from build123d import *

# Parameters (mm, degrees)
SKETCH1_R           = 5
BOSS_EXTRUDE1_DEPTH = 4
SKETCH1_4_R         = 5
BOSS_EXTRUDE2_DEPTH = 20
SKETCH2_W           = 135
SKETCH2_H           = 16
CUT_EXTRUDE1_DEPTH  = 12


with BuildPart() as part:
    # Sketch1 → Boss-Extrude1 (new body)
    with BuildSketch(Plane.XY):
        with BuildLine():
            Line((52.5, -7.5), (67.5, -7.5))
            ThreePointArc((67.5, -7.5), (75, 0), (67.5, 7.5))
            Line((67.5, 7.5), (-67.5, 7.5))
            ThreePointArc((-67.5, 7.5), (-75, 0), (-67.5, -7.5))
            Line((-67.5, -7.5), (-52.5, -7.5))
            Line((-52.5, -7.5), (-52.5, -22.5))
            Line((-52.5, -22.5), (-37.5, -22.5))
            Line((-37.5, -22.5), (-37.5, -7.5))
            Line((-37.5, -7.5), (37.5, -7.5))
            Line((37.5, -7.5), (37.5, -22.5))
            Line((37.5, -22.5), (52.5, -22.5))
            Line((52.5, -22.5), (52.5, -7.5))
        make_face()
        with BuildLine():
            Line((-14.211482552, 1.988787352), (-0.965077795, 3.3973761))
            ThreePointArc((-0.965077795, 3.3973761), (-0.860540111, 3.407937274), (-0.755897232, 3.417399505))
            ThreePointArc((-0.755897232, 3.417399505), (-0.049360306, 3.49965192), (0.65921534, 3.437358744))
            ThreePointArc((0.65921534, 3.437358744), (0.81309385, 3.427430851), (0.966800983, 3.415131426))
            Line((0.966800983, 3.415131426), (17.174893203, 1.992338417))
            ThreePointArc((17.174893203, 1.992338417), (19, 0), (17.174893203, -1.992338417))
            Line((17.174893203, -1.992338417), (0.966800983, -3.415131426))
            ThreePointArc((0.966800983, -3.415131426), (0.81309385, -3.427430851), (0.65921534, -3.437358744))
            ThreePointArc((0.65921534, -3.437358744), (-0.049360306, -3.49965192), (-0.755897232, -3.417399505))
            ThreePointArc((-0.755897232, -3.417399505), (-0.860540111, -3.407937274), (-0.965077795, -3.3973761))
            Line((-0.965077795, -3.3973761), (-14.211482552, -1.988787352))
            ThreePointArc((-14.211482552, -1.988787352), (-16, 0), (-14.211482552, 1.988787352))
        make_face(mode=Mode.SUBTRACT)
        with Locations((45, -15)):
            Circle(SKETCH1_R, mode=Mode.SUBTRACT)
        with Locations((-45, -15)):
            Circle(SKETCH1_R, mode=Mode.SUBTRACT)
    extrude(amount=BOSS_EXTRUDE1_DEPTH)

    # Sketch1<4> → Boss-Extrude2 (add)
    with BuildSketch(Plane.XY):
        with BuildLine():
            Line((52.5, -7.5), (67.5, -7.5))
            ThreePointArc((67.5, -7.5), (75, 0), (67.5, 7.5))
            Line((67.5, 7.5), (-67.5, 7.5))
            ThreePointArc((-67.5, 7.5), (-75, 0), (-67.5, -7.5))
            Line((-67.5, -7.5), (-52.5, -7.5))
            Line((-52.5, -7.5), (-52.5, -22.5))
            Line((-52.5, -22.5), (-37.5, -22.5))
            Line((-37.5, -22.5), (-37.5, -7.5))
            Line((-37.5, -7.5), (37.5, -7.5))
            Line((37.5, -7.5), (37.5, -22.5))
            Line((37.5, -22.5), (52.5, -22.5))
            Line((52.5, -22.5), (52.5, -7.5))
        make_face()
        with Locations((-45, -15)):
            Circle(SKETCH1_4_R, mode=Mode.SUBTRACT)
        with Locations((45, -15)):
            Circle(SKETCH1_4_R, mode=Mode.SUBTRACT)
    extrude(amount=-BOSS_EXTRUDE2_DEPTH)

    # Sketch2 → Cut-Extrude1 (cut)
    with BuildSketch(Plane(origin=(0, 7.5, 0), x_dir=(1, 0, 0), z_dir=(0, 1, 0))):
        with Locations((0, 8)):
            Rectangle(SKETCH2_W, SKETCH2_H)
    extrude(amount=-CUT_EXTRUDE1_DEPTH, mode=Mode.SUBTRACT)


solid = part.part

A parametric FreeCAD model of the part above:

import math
import FreeCAD as App
import Part
import Sketcher

V = App.Vector
Q = App.Units.Quantity

doc = App.newDocument("Part")
body = doc.addObject("PartDesign::Body", "Body")

# Sketch on XY plane
sketch1 = doc.addObject("Sketcher::SketchObject", "Sketch")
body.addObject(sketch1)
sketch1.AttachmentSupport = (doc.XY_Plane, [""])
sketch1.MapMode = "FlatFace"
sketch1.addGeometry([
    Part.LineSegment(V(52.5, -7.5, 0), V(67.5, -7.5, 0)),  # 0
    Part.ArcOfCircle(Part.Circle(V(67.5, 0, 0), V(0, 0, 1), 7.5), math.radians(-90), math.radians(90)),  # 1
    Part.LineSegment(V(67.5, 7.5, 0), V(-67.5, 7.5, 0)),  # 2
    Part.ArcOfCircle(Part.Circle(V(-67.5, 0, 0), V(0, 0, 1), 7.5), math.radians(90), math.radians(270)),  # 3
    Part.LineSegment(V(-67.5, -7.5, 0), V(-52.5, -7.5, 0)),  # 4
    Part.LineSegment(V(-52.5, -7.5, 0), V(-52.5, -22.5, 0)),  # 5
    Part.LineSegment(V(-52.5, -22.5, 0), V(-37.5, -22.5, 0)),  # 6
    Part.LineSegment(V(-37.5, -22.5, 0), V(-37.5, -7.5, 0)),  # 7
    Part.LineSegment(V(-37.5, -7.5, 0), V(37.5, -7.5, 0)),  # 8
    Part.LineSegment(V(37.5, -7.5, 0), V(37.5, -22.5, 0)),  # 9
    Part.LineSegment(V(37.5, -22.5, 0), V(52.5, -22.5, 0)),  # 10
    Part.LineSegment(V(52.5, -22.5, 0), V(52.5, -7.5, 0)),  # 11
    Part.Circle(V(-45, -15, 0), V(0, 0, 1), 5),  # 12
    Part.Circle(V(45, -15, 0), V(0, 0, 1), 5),  # 13
    Part.ArcOfCircle(Part.Circle(V(-14, 0, 0), V(0, 0, 1), 2), math.radians(96), math.radians(264)),  # 14
    Part.LineSegment(V(-14.21, 1.99, 0), V(-0.97, 3.4, 0)),  # 15
    Part.ArcOfCircle(Part.Circle(V(0.09, -6.55, 0), V(0, 0, 1), 10), math.radians(94.87), math.radians(96.07)),  # 16
    Part.ArcOfCircle(Part.Circle(V(0, 0, 0), V(0, 0, 1), 3.5), math.radians(79), math.radians(102)),  # 17
    Part.ArcOfCircle(Part.Circle(V(0.09, -6.55, 0), V(0, 0, 1), 10), math.radians(84.98), math.radians(86.75)),  # 18
    Part.LineSegment(V(0.97, 3.42, 0), V(17.17, 1.99, 0)),  # 19
    Part.ArcOfCircle(Part.Circle(V(17, 0, 0), V(0, 0, 1), 2), math.radians(-85), math.radians(85)),  # 20
    Part.LineSegment(V(17.17, -1.99, 0), V(0.97, -3.42, 0)),  # 21
    Part.ArcOfCircle(Part.Circle(V(0.09, 6.55, 0), V(0, 0, 1), 10), math.radians(-86.75), math.radians(-84.98)),  # 22
    Part.ArcOfCircle(Part.Circle(V(0, 0, 0), V(0, 0, 1), 3.5), math.radians(-102), math.radians(-79)),  # 23
    Part.ArcOfCircle(Part.Circle(V(0.09, 6.55, 0), V(0, 0, 1), 10), math.radians(-96.07), math.radians(-94.87)),  # 24
    Part.LineSegment(V(-0.97, -3.4, 0), V(-14.21, -1.99, 0)),  # 25
], False)
sketch1.addConstraint([
    Sketcher.Constraint("Tangent", 0, 2, 1, 1),
    Sketcher.Constraint("Tangent", 1, 2, 2, 1),
    Sketcher.Constraint("Tangent", 2, 2, 3, 1),
    Sketcher.Constraint("Tangent", 3, 2, 4, 1),
    Sketcher.Constraint("Coincident", 4, 2, 5, 1),
    Sketcher.Constraint("Coincident", 5, 2, 6, 1),
    Sketcher.Constraint("Coincident", 6, 2, 7, 1),
    Sketcher.Constraint("Coincident", 7, 2, 8, 1),
    Sketcher.Constraint("Coincident", 8, 2, 9, 1),
    Sketcher.Constraint("Coincident", 9, 2, 10, 1),
    Sketcher.Constraint("Coincident", 10, 2, 11, 1),
    Sketcher.Constraint("Coincident", 11, 2, 0, 1),
    Sketcher.Constraint("Tangent", 14, 1, 15, 1),
    Sketcher.Constraint("Tangent", 15, 2, 16, 2),
    Sketcher.Constraint("Coincident", 16, 1, 17, 2),
    Sketcher.Constraint("Coincident", 17, 1, 18, 2),
    Sketcher.Constraint("Tangent", 18, 1, 19, 1),
    Sketcher.Constraint("Tangent", 19, 2, 20, 2),
    Sketcher.Constraint("Tangent", 20, 1, 21, 1),
    Sketcher.Constraint("Tangent", 21, 2, 22, 2),
    Sketcher.Constraint("Coincident", 22, 1, 23, 2),
    Sketcher.Constraint("Coincident", 23, 1, 24, 2),
    Sketcher.Constraint("Tangent", 24, 1, 25, 1),
    Sketcher.Constraint("Tangent", 25, 2, 14, 2),
    Sketcher.Constraint("Horizontal", 0),
    Sketcher.Constraint("Horizontal", 2),
    Sketcher.Constraint("Horizontal", 4),
    Sketcher.Constraint("Vertical", 5),
    Sketcher.Constraint("Horizontal", 6),
    Sketcher.Constraint("Vertical", 7),
    Sketcher.Constraint("Horizontal", 8),
    Sketcher.Constraint("Vertical", 9),
    Sketcher.Constraint("Horizontal", 10),
    Sketcher.Constraint("Vertical", 11),
    Sketcher.Constraint("Coincident", 17, 3, -1, 1),
    Sketcher.Constraint("Coincident", 23, 3, -1, 1),
    Sketcher.Constraint("Coincident", 18, 3, 16, 3),
    Sketcher.Constraint("Coincident", 24, 3, 22, 3),
    Sketcher.Constraint("Equal", 1, 3),
    Sketcher.Constraint("Equal", 12, 13),
    Sketcher.Constraint("Equal", 14, 20),
    Sketcher.Constraint("Equal", 18, 22),
    Sketcher.Constraint("Equal", 17, 23),
    Sketcher.Constraint("Equal", 16, 24),
    Sketcher.Constraint("Symmetric", 1, 3, 3, 3, -1, 1),
    Sketcher.Constraint("Symmetric", 12, 3, 13, 3, -2),
    Sketcher.Constraint("Symmetric", 6, 2, 9, 2, -2),
    Sketcher.Constraint("Symmetric", 16, 3, 22, 3, -1),
    Sketcher.Constraint("PointOnObject", 14, 3, -1),
    Sketcher.Constraint("PointOnObject", 20, 3, -1),
    Sketcher.Constraint("Horizontal", 4, 2, 7, 2),
    Sketcher.Constraint("Equal", 0, 4),
    Sketcher.Constraint("Equal", 4, 6),
    Sketcher.Constraint("Equal", 10, 5),
    Sketcher.Constraint("Diameter", 12, Q("10 mm")),
    Sketcher.Constraint("Radius", 14, Q("2 mm")),
    Sketcher.Constraint("Radius", 18, Q("9.999999 mm")),
    Sketcher.Constraint("Radius", 1, Q("7.5 mm")),
    Sketcher.Constraint("Radius", 17, Q("3.5 mm")),
    Sketcher.Constraint("DistanceX", 0, 1, 0, 2, Q("15 mm")),
    Sketcher.Constraint("DistanceX", 2, 2, 2, 1, Q("135 mm")),
    Sketcher.Constraint("DistanceX", 12, 3, -1, 1, Q("45 mm")),
    Sketcher.Constraint("DistanceY", 12, 3, -1, 1, Q("15 mm")),
    Sketcher.Constraint("DistanceX", 14, 3, -1, 1, Q("14 mm")),
    Sketcher.Constraint("DistanceX", -1, 1, 20, 3, Q("17 mm")),
    Sketcher.Constraint("Radius", 16, Q("10.000002 mm")),
    Sketcher.Constraint("DistanceY", -1, 1, 16, 1, Q("3.4174 mm")),
    Sketcher.Constraint("DistanceX", -1, 1, 18, 1, Q("0.966801 mm")),
])
pad1 = doc.addObject("PartDesign::Pad", "Pad")
body.addObject(pad1)
pad1.Profile = sketch1
pad1.Length = 4

# Sketch on XY plane
sketch2 = doc.addObject("Sketcher::SketchObject", "Sketch001")
body.addObject(sketch2)
sketch2.AttachmentSupport = (doc.XY_Plane, [""])
sketch2.MapMode = "FlatFace"
sketch2.addGeometry([
    Part.LineSegment(V(52, -8, 0), V(68, -8, 0)),  # 0
    Part.ArcOfCircle(Part.Circle(V(68, 0, 0), V(0, 0, 1), 8), math.radians(-90), math.radians(90)),  # 1
    Part.LineSegment(V(68, 8, 0), V(-68, 8, 0)),  # 2
    Part.ArcOfCircle(Part.Circle(V(-68, 0, 0), V(0, 0, 1), 8), math.radians(90), math.radians(270)),  # 3
    Part.LineSegment(V(-68, -8, 0), V(-52, -8, 0)),  # 4
    Part.LineSegment(V(-52, -8, 0), V(-52, -22, 0)),  # 5
    Part.LineSegment(V(-52, -22, 0), V(-38, -22, 0)),  # 6
    Part.LineSegment(V(-38, -22, 0), V(-38, -8, 0)),  # 7
    Part.LineSegment(V(-38, -8, 0), V(38, -8, 0)),  # 8
    Part.LineSegment(V(38, -8, 0), V(38, -22, 0)),  # 9
    Part.LineSegment(V(38, -22, 0), V(52, -22, 0)),  # 10
    Part.LineSegment(V(52, -22, 0), V(52, -8, 0)),  # 11
    Part.Circle(V(-45, -15, 0), V(0, 0, 1), 5),  # 12
    Part.Circle(V(45, -15, 0), V(0, 0, 1), 5),  # 13
], False)
sketch2.addConstraint([
    Sketcher.Constraint("Tangent", 0, 2, 1, 1),
    Sketcher.Constraint("Tangent", 1, 2, 2, 1),
    Sketcher.Constraint("Tangent", 2, 2, 3, 1),
    Sketcher.Constraint("Tangent", 3, 2, 4, 1),
    Sketcher.Constraint("Coincident", 4, 2, 5, 1),
    Sketcher.Constraint("Coincident", 5, 2, 6, 1),
    Sketcher.Constraint("Coincident", 6, 2, 7, 1),
    Sketcher.Constraint("Coincident", 7, 2, 8, 1),
    Sketcher.Constraint("Coincident", 8, 2, 9, 1),
    Sketcher.Constraint("Coincident", 9, 2, 10, 1),
    Sketcher.Constraint("Coincident", 10, 2, 11, 1),
    Sketcher.Constraint("Coincident", 11, 2, 0, 1),
    Sketcher.Constraint("Horizontal", 0),
    Sketcher.Constraint("Horizontal", 2),
    Sketcher.Constraint("Horizontal", 4),
    Sketcher.Constraint("Vertical", 5),
    Sketcher.Constraint("Horizontal", 6),
    Sketcher.Constraint("Vertical", 7),
    Sketcher.Constraint("Horizontal", 8),
    Sketcher.Constraint("Vertical", 9),
    Sketcher.Constraint("Horizontal", 10),
    Sketcher.Constraint("Vertical", 11),
    Sketcher.Constraint("Equal", 1, 3),
    Sketcher.Constraint("Equal", 12, 13),
    Sketcher.Constraint("Symmetric", 1, 3, 3, 3, -1, 1),
    Sketcher.Constraint("Symmetric", 12, 3, 13, 3, -2),
    Sketcher.Constraint("Symmetric", 6, 2, 9, 2, -2),
    Sketcher.Constraint("Horizontal", 4, 2, 7, 2),
    Sketcher.Constraint("Equal", 0, 4),
    Sketcher.Constraint("Equal", 4, 6),
    Sketcher.Constraint("Equal", 10, 5),
    Sketcher.Constraint("Diameter", 12, Q("10 mm")),
    Sketcher.Constraint("Radius", 1, Q("7.5 mm")),
    Sketcher.Constraint("DistanceX", 0, 1, 0, 2, Q("15 mm")),
    Sketcher.Constraint("DistanceX", 2, 2, 2, 1, Q("135 mm")),
    Sketcher.Constraint("DistanceX", 12, 3, -1, 1, Q("45 mm")),
    Sketcher.Constraint("DistanceY", 12, 3, -1, 1, Q("15 mm")),
])
pad2 = doc.addObject("PartDesign::Pad", "Pad001")
body.addObject(pad2)
pad2.Profile = sketch2
pad2.Length = 20
pad2.Reversed = True

# Sketch on XZ plane
sketch3 = doc.addObject("Sketcher::SketchObject", "Sketch002")
body.addObject(sketch3)
sketch3.AttachmentSupport = (doc.XZ_Plane, [""])
sketch3.MapMode = "FlatFace"
sketch3.AttachmentOffset = App.Placement(V(0, 0, -7.5), App.Rotation())
sketch3.addGeometry([
    Part.LineSegment(V(-68, -16, 0), V(-68, 0, 0)),
    Part.LineSegment(V(-68, 0, 0), V(68, 0, 0)),
    Part.LineSegment(V(68, 0, 0), V(68, -16, 0)),
    Part.LineSegment(V(68, -16, 0), V(-68, -16, 0)),
], False)
sketch3.addConstraint([
    Sketcher.Constraint("Coincident", 0, 2, 1, 1),
    Sketcher.Constraint("Coincident", 1, 2, 2, 1),
    Sketcher.Constraint("Coincident", 2, 2, 3, 1),
    Sketcher.Constraint("Coincident", 3, 2, 0, 1),
    Sketcher.Constraint("Vertical", 0),
    Sketcher.Constraint("Horizontal", 1),
    Sketcher.Constraint("Vertical", 2),
    Sketcher.Constraint("Horizontal", 3),
    Sketcher.Constraint("Symmetric", 0, 2, 1, 2, -1, 1),
    Sketcher.Constraint("DistanceX", 1, 1, 1, 2, Q("135 mm")),
    Sketcher.Constraint("DistanceY", 0, 1, 0, 2, Q("16 mm")),
])
pocket1 = doc.addObject("PartDesign::Pocket", "Pocket")
body.addObject(pocket1)
pocket1.Profile = sketch3
pocket1.Length = 12
pocket1.Reversed = True

doc.recompute()
